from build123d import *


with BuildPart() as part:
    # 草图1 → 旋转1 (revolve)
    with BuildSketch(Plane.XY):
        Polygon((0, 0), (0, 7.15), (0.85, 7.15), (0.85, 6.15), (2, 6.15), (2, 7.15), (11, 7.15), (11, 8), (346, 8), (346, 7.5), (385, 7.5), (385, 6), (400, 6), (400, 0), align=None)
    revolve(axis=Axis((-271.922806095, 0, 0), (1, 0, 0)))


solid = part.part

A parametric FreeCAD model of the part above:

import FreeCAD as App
import Part
import Sketcher

doc = App.newDocument("Part")
body = doc.addObject("PartDesign::Body", "Body")

# Sketch on XY plane
sketch1 = doc.addObject("Sketcher::SketchObject", "Sketch")
body.addObject(sketch1)
sketch1.AttachmentSupport = (doc.XY_Plane, [""])
sketch1.MapMode = "FlatFace"
sketch1.addGeometry(Part.LineSegment(App.Vector(0, 7.2, 0), App.Vector(0, 0, 0)), False)
sketch1.addGeometry(Part.LineSegment(App.Vector(0, 0, 0), App.Vector(400, 0, 0)), False)
sketch1.addGeometry(Part.LineSegment(App.Vector(400, 0, 0), App.Vector(400, 6, 0)), False)
sketch1.addGeometry(Part.LineSegment(App.Vector(400, 6, 0), App.Vector(385, 6, 0)), False)
sketch1.addGeometry(Part.LineSegment(App.Vector(385, 6, 0), App.Vector(385, 7.5, 0)), False)
sketch1.addGeometry(Part.LineSegment(App.Vector(385, 7.5, 0), App.Vector(346, 7.5, 0)), False)
sketch1.addGeometry(Part.LineSegment(App.Vector(346, 7.5, 0), App.Vector(346, 8, 0)), False)
sketch1.addGeometry(Part.LineSegment(App.Vector(346, 8, 0), App.Vector(11, 8, 0)), False)
sketch1.addGeometry(Part.LineSegment(App.Vector(11, 8, 0), App.Vector(11, 7.2, 0)), False)
sketch1.addGeometry(Part.LineSegment(App.Vector(11, 7.2, 0), App.Vector(2, 7.2, 0)), False)
sketch1.addGeometry(Part.LineSegment(App.Vector(2, 7.2, 0), App.Vector(2, 6.2, 0)), False)
sketch1.addGeometry(Part.LineSegment(App.Vector(2, 6.2, 0), App.Vector(0.8, 6.2, 0)), False)
sketch1.addGeometry(Part.LineSegment(App.Vector(0.8, 6.2, 0), App.Vector(0.8, 7.2, 0)), False)
sketch1.addGeometry(Part.LineSegment(App.Vector(0.8, 7.2, 0), App.Vector(0, 7.2, 0)), False)
sketch1.addConstraint(Sketcher.Constraint("Coincident", 0, 2, 1, 1))
sketch1.addConstraint(Sketcher.Constraint("Coincident", 1, 2, 2, 1))
sketch1.addConstraint(Sketcher.Constraint("Coincident", 2, 2, 3, 1))
sketch1.addConstraint(Sketcher.Constraint("Coincident", 3, 2, 4, 1))
sketch1.addConstraint(Sketcher.Constraint("Coincident", 4, 2, 5, 1))
sketch1.addConstraint(Sketcher.Constraint("Coincident", 5, 2, 6, 1))
sketch1.addConstraint(Sketcher.Constraint("Coincident", 6, 2, 7, 1))
sketch1.addConstraint(Sketcher.Constraint("Coincident", 7, 2, 8, 1))
sketch1.addConstraint(Sketcher.Constraint("Coincident", 8, 2, 9, 1))
sketch1.addConstraint(Sketcher.Constraint("Coincident", 9, 2, 10, 1))
sketch1.addConstraint(Sketcher.Constraint("Coincident", 10, 2, 11, 1))
sketch1.addConstraint(Sketcher.Constraint("Coincident", 11, 2, 12, 1))
sketch1.addConstraint(Sketcher.Constraint("Coincident", 12, 2, 13, 1))
sketch1.addConstraint(Sketcher.Constraint("Coincident", 13, 2, 0, 1))
sketch1.addConstraint(Sketcher.Constraint("Vertical", 0))
sketch1.addConstraint(Sketcher.Constraint("Horizontal", 1))
sketch1.addConstraint(Sketcher.Constraint("Vertical", 2))
sketch1.addConstraint(Sketcher.Constraint("Horizontal", 3))
sketch1.addConstraint(Sketcher.Constraint("Vertical", 4))
sketch1.addConstraint(Sketcher.Constraint("Horizontal", 5))
sketch1.addConstraint(Sketcher.Constraint("Vertical", 6))
sketch1.addConstraint(Sketcher.Constraint("Horizontal", 7))
sketch1.addConstraint(Sketcher.Constraint("Vertical", 8))
sketch1.addConstraint(Sketcher.Constraint("Horizontal", 9))
sketch1.addConstraint(Sketcher.Constraint("Vertical", 10))
sketch1.addConstraint(Sketcher.Constraint("Horizontal", 11))
sketch1.addConstraint(Sketcher.Constraint("Vertical", 12))
sketch1.addConstraint(Sketcher.Constraint("Horizontal", 13))
sketch1.addConstraint(Sketcher.Constraint("Coincident", 0, 2, -1, 1))
sketch1.addConstraint(Sketcher.Constraint("Horizontal", 9, 2, 12, 2))
sketch1.addConstraint(Sketcher.Constraint("Equal", 13, 8))
sketch1.addConstraint(Sketcher.Constraint("DistanceX", 1, 1, 1, 2, 400.0))
sketch1.addConstraint(Sketcher.Constraint("DistanceX", 3, 2, 3, 1, 15.0))
sketch1.addConstraint(Sketcher.Constraint("DistanceX", 5, 2, 5, 1, 39.0))
sketch1.addConstraint(Sketcher.Constraint("DistanceX", 7, 2, 7, 1, 335.0))
sketch1.addConstraint(Sketcher.Constraint("DistanceX", 9, 2, 9, 1, 9.0))
sketch1.addConstraint(Sketcher.Constraint("DistanceY", 2, 1, 2, 2, 6.0))
sketch1.addConstraint(Sketcher.Constraint("DistanceY", 10, 2, 10, 1, 1.0))
sketch1.addConstraint(Sketcher.Constraint("DistanceY", 4, 1, 4, 2, 1.5))
sketch1.addConstraint(Sketcher.Constraint("DistanceY", 6, 1, 6, 2, 0.5))
sketch1.addConstraint(Sketcher.Constraint("DistanceX", 11, 2, 11, 1, 1.15))
revolution = doc.addObject("PartDesign::Revolution", "Revolution")
body.addObject(revolution)
revolution.Profile = sketch1
revolution.ReferenceAxis = (sketch1, ["H_Axis"])
revolution.Angle = 360

doc.recompute()
